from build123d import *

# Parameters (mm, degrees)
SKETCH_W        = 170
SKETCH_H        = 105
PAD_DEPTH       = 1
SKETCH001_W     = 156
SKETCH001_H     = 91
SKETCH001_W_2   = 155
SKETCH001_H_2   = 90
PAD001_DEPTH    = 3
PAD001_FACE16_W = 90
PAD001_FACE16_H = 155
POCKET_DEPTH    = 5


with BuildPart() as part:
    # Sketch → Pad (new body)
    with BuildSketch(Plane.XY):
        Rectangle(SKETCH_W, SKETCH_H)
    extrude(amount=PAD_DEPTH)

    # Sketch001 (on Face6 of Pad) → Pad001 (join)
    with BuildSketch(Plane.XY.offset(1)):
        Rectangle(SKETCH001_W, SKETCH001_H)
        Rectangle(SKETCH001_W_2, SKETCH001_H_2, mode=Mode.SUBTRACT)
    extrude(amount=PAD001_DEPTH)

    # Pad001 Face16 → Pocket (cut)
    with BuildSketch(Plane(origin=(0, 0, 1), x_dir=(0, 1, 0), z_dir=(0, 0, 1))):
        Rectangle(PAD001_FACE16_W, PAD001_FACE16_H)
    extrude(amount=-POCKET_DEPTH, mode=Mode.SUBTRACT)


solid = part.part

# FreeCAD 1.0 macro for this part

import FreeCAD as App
import Part
import Sketcher

doc = App.newDocument("Part")
params = doc.addObject("Spreadsheet::Sheet", "Params")
for row, (alias, value) in enumerate([
    ("sketch1_width", "170 mm"),
    ("sketch1_height", "105 mm"),
    ("pad1_length", "1 mm"),
    ("sketch2_width", "156 mm"),
    ("sketch2_width2", "155 mm"),
    ("sketch2_height", "91 mm"),
    ("sketch2_height2", "90 mm"),
    ("pad2_length", "3 mm"),
    ("sketch3_width", "155 mm"),
    ("sketch3_height", "90 mm"),
    ("pocket1_length", "5 mm"),
], start=1):
    params.set(f"A{row}", alias)
    params.set(f"B{row}", "=" + value)
    params.setAlias(f"B{row}", alias)

body = doc.addObject("PartDesign::Body", "Body")

# Sketch on XY plane
sketch1 = body.newObject("Sketcher::SketchObject", "Sketch")
sketch1.AttachmentSupport = (doc.getObject("XY_Plane"), [""])
sketch1.MapMode = "FlatFace"
sketch1.addGeometry(Part.LineSegment(App.Vector(-85, 52.5, 0), App.Vector(-85, -52.5, 0)), False)
sketch1.addGeometry(Part.LineSegment(App.Vector(-85, -52.5, 0), App.Vector(85, -52.5, 0)), False)
sketch1.addGeometry(Part.LineSegment(App.Vector(85, -52.5, 0), App.Vector(85, 52.5, 0)), False)
sketch1.addGeometry(Part.LineSegment(App.Vector(85, 52.5, 0), App.Vector(-85, 52.5, 0)), False)
sketch1.addConstraint(Sketcher.Constraint("Coincident", 0, 2, 1, 1))
sketch1.addConstraint(Sketcher.Constraint("Coincident", 1, 2, 2, 1))
sketch1.addConstraint(Sketcher.Constraint("Coincident", 2, 2, 3, 1))
sketch1.addConstraint(Sketcher.Constraint("Coincident", 3, 2, 0, 1))
sketch1.addConstraint(Sketcher.Constraint("Vertical", 0))
sketch1.addConstraint(Sketcher.Constraint("Horizontal", 1))
sketch1.addConstraint(Sketcher.Constraint("Vertical", 2))
sketch1.addConstraint(Sketcher.Constraint("Horizontal", 3))
sketch1.addConstraint(Sketcher.Constraint("Symmetric", 0, 2, 2, 2, -1, 1))
sketch1.addConstraint(Sketcher.Constraint("DistanceX", 1, 1, 1, 2, 170.0))
sketch1.addConstraint(Sketcher.Constraint("DistanceY", 0, 2, 0, 1, 105.0))
sketch1.setExpression("Constraints[9]", "Params.sketch1_width")
sketch1.setExpression("Constraints[10]", "Params.sketch1_height")
pad1 = body.newObject("PartDesign::Pad", "Pad")
pad1.Profile = sketch1
pad1.setExpression("Length", "Params.pad1_length")

# Sketch on XY plane
sketch2 = body.newObject("Sketcher::SketchObject", "Sketch001")
sketch2.AttachmentSupport = (doc.getObject("XY_Plane"), [""])
sketch2.MapMode = "FlatFace"
sketch2.AttachmentOffset = App.Placement(App.Vector(0, 0, 1), App.Rotation())
sketch2.addGeometry(Part.LineSegment(App.Vector(-78, 45.5, 0), App.Vector(-78, -45.5, 0)), False)
sketch2.addGeometry(Part.LineSegment(App.Vector(-78, -45.5, 0), App.Vector(78, -45.5, 0)), False)
sketch2.addGeometry(Part.LineSegment(App.Vector(78, -45.5, 0), App.Vector(78, 45.5, 0)), False)
sketch2.addGeometry(Part.LineSegment(App.Vector(78, 45.5, 0), App.Vector(-78, 45.5, 0)), False)
sketch2.addGeometry(Part.LineSegment(App.Vector(77.5, -45, 0), App.Vector(-77.5, -45, 0)), False)
sketch2.addGeometry(Part.LineSegment(App.Vector(-77.5, -45, 0), App.Vector(-77.5, 45, 0)), False)
sketch2.addGeometry(Part.LineSegment(App.Vector(-77.5, 45, 0), App.Vector(77.5, 45, 0)), False)
sketch2.addGeometry(Part.LineSegment(App.Vector(77.5, 45, 0), App.Vector(77.5, -45, 0)), False)
sketch2.addConstraint(Sketcher.Constraint("Coincident", 0, 2, 1, 1))
sketch2.addConstraint(Sketcher.Constraint("Coincident", 1, 2, 2, 1))
sketch2.addConstraint(Sketcher.Constraint("Coincident", 2, 2, 3, 1))
sketch2.addConstraint(Sketcher.Constraint("Coincident", 3, 2, 0, 1))
sketch2.addConstraint(Sketcher.Constraint("Coincident", 4, 2, 5, 1))
sketch2.addConstraint(Sketcher.Constraint("Coincident", 5, 2, 6, 1))
sketch2.addConstraint(Sketcher.Constraint("Coincident", 6, 2, 7, 1))
sketch2.addConstraint(Sketcher.Constraint("Coincident", 7, 2, 4, 1))
sketch2.addConstraint(Sketcher.Constraint("Vertical", 0))
sketch2.addConstraint(Sketcher.Constraint("Horizontal", 1))
sketch2.addConstraint(Sketcher.Constraint("Vertical", 2))
sketch2.addConstraint(Sketcher.Constraint("Horizontal", 3))
sketch2.addConstraint(Sketcher.Constraint("Horizontal", 4))
sketch2.addConstraint(Sketcher.Constraint("Vertical", 5))
sketch2.addConstraint(Sketcher.Constraint("Horizontal", 6))
sketch2.addConstraint(Sketcher.Constraint("Vertical", 7))
sketch2.addConstraint(Sketcher.Constraint("Symmetric", 0, 2, 2, 2, -1, 1))
sketch2.addConstraint(Sketcher.Constraint("Symmetric", 4, 2, 6, 2, -1, 1))
sketch2.addConstraint(Sketcher.Constraint("DistanceX", 1, 1, 1, 2, 156.0))
sketch2.addConstraint(Sketcher.Constraint("DistanceX", 4, 2, 4, 1, 155.0))
sketch2.addConstraint(Sketcher.Constraint("DistanceY", 0, 2, 0, 1, 91.0))
sketch2.addConstraint(Sketcher.Constraint("DistanceY", 5, 1, 5, 2, 90.0))
sketch2.setExpression("Constraints[18]", "Params.sketch2_width")
sketch2.setExpression("Constraints[19]", "Params.sketch2_width2")
sketch2.setExpression("Constraints[20]", "Params.sketch2_height")
sketch2.setExpression("Constraints[21]", "Params.sketch2_height2")
pad2 = body.newObject("PartDesign::Pad", "Pad001")
pad2.Profile = sketch2
pad2.setExpression("Length", "Params.pad2_length")

# Sketch on XY plane
sketch3 = body.newObject("Sketcher::SketchObject", "Sketch002")
sketch3.AttachmentSupport = (doc.getObject("XY_Plane"), [""])
sketch3.MapMode = "FlatFace"
sketch3.AttachmentOffset = App.Placement(App.Vector(0, 0, 1), App.Rotation())
sketch3.addGeometry(Part.LineSegment(App.Vector(-77.5, -45, 0), App.Vector(77.5, -45, 0)), False)
sketch3.addGeometry(Part.LineSegment(App.Vector(77.5, -45, 0), App.Vector(77.5, 45, 0)), False)
sketch3.addGeometry(Part.LineSegment(App.Vector(77.5, 45, 0), App.Vector(-77.5, 45, 0)), False)
sketch3.addGeometry(Part.LineSegment(App.Vector(-77.5, 45, 0), App.Vector(-77.5, -45, 0)), False)
sketch3.addConstraint(Sketcher.Constraint("Coincident", 0, 2, 1, 1))
sketch3.addConstraint(Sketcher.Constraint("Coincident", 1, 2, 2, 1))
sketch3.addConstraint(Sketcher.Constraint("Coincident", 2, 2, 3, 1))
sketch3.addConstraint(Sketcher.Constraint("Coincident", 3, 2, 0, 1))
sketch3.addConstraint(Sketcher.Constraint("Horizontal", 0))
sketch3.addConstraint(Sketcher.Constraint("Vertical", 1))
sketch3.addConstraint(Sketcher.Constraint("Horizontal", 2))
sketch3.addConstraint(Sketcher.Constraint("Vertical", 3))
sketch3.addConstraint(Sketcher.Constraint("Symmetric", 0, 2, 2, 2, -1, 1))
sketch3.addConstraint(Sketcher.Constraint("DistanceX", 0, 1, 0, 2, 155.0))
sketch3.addConstraint(Sketcher.Constraint("DistanceY", 1, 1, 1, 2, 90.0))
sketch3.setExpression("Constraints[9]", "Params.sketch3_width")
sketch3.setExpression("Constraints[10]", "Params.sketch3_height")
pocket1 = body.newObject("PartDesign::Pocket", "Pocket")
pocket1.Profile = sketch3
pocket1.setExpression("Length", "Params.pocket1_length")

doc.recompute()
